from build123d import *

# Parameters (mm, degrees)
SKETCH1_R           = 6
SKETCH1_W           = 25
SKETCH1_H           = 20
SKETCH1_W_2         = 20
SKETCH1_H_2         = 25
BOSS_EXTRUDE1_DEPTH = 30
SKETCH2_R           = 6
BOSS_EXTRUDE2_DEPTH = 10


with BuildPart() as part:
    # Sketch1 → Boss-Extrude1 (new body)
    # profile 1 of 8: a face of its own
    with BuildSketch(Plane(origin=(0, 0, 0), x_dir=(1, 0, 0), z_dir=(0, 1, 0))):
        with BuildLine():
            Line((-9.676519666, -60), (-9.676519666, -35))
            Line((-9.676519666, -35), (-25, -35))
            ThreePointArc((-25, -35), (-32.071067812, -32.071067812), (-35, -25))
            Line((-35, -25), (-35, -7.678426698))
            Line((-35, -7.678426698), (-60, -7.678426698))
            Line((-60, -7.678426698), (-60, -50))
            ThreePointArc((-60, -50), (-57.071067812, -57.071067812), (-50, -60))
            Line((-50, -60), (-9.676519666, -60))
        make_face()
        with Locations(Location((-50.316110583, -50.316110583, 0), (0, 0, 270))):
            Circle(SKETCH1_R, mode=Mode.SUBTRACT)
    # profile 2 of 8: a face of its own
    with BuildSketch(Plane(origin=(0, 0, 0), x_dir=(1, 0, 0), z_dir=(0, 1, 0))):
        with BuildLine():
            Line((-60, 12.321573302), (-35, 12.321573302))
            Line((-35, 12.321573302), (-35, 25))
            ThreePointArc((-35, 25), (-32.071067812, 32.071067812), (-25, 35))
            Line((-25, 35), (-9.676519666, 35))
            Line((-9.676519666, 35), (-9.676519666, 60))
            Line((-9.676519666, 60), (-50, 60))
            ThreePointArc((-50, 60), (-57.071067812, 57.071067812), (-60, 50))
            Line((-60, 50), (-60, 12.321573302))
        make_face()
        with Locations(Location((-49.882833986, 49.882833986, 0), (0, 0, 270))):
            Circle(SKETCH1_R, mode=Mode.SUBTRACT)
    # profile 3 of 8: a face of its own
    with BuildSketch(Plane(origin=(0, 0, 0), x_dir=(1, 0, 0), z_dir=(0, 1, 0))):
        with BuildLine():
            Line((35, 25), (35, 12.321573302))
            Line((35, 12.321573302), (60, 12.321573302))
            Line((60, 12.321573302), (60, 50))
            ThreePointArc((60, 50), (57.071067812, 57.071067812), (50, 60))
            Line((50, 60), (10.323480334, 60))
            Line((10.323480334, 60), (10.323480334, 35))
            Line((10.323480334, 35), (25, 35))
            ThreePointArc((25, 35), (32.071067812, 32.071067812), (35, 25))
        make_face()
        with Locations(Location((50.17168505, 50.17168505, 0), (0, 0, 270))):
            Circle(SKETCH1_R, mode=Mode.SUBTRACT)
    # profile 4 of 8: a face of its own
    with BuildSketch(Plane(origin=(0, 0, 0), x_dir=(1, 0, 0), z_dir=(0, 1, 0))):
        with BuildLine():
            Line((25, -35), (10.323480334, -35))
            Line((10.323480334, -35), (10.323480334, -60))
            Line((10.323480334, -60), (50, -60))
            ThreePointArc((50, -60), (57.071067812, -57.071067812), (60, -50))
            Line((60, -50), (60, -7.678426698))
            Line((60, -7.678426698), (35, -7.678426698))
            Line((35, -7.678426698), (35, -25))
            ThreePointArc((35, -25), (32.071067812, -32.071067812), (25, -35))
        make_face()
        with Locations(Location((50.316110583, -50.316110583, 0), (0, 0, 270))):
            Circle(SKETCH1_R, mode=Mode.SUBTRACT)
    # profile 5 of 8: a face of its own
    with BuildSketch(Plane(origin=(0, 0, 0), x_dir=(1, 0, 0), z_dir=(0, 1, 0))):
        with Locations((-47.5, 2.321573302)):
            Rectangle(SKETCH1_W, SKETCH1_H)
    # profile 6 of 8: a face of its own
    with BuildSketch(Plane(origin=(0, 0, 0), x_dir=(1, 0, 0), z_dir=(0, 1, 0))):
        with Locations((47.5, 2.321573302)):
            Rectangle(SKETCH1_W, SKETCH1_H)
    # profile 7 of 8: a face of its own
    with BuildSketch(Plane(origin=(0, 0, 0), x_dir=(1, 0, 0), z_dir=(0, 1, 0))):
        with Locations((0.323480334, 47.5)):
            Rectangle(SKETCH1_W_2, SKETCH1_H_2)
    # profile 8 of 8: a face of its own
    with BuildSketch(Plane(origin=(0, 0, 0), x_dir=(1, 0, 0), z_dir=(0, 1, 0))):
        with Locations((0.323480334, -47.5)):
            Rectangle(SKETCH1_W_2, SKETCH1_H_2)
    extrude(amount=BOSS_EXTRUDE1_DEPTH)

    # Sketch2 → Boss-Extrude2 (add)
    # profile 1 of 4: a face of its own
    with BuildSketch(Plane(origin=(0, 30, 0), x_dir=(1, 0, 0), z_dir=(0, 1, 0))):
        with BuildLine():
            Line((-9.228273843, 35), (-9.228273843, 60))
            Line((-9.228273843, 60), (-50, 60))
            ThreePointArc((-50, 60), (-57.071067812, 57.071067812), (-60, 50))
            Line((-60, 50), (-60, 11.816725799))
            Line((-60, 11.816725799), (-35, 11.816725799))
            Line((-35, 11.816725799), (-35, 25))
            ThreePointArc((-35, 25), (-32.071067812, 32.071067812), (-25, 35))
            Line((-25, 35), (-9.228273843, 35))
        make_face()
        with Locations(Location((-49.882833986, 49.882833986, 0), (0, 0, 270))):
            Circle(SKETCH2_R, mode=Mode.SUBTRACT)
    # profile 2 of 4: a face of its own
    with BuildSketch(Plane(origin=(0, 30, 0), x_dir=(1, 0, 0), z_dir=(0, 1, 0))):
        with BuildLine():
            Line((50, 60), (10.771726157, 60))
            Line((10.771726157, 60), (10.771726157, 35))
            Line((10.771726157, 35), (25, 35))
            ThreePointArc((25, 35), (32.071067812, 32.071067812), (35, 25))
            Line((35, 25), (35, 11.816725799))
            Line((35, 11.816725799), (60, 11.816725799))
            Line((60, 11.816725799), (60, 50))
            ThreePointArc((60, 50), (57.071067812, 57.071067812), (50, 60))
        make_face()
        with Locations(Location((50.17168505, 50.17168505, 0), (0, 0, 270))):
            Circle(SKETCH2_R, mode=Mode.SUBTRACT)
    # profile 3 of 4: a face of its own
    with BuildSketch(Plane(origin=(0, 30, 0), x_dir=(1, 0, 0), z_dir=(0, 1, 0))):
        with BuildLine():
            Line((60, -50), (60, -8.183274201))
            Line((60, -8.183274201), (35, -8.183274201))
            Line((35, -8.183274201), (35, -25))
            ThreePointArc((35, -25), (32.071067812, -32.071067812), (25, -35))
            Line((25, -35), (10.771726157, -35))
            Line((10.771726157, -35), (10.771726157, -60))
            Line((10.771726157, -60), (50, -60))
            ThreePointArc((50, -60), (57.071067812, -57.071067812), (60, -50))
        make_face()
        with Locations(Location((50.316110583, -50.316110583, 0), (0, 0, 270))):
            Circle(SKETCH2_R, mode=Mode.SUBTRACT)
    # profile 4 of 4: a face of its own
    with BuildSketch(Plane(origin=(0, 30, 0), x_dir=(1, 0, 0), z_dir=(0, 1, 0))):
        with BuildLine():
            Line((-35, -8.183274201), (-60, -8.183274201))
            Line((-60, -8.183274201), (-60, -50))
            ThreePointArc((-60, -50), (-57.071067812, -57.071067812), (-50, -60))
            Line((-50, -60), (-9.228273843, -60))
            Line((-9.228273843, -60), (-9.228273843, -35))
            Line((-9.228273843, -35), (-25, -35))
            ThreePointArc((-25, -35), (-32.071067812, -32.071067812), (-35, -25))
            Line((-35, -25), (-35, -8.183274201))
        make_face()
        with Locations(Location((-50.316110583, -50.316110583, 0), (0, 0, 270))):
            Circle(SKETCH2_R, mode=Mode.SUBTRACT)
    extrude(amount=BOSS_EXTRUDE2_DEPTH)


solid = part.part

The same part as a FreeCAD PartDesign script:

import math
import FreeCAD as App
import Part
import Sketcher

V = App.Vector
Q = App.Units.Quantity

doc = App.newDocument("Part")
params = doc.addObject("Spreadsheet::Sheet", "Params")
for row, (alias, value) in enumerate([
    ("sketch1_diameter", "12 mm"),
    ("sketch1_radius", "10 mm"),
    ("sketch1_width", "100 mm"),
    ("sketch1_width2", "50 mm"),
    ("pad1_length", "30 mm"),
    ("sketch2_diameter", "12 mm"),
    ("sketch2_radius", "10 mm"),
    ("sketch2_width", "25 mm"),
    ("pad2_length", "10 mm"),
], start=1):
    params.set(f"A{row}", alias)
    params.set(f"B{row}", "=" + value)
    params.setAlias(f"B{row}", alias)

body = doc.addObject("PartDesign::Body", "Body")

# Sketch on XZ plane
sketch1 = body.newObject("Sketcher::SketchObject", "Sketch")
sketch1.AttachmentSupport = (doc.getObject("XZ_Plane"), [""])
sketch1.MapMode = "FlatFace"
sketch1.addGeometry([
    Part.LineSegment(V(-50, 60, 0), V(50, 60, 0)),  # 0
    Part.ArcOfCircle(Part.Circle(V(50, 50, 0), V(0, 0, 1), 10), math.radians(0), math.radians(90)),  # 1
    Part.LineSegment(V(60, 50, 0), V(60, -50, 0)),  # 2
    Part.ArcOfCircle(Part.Circle(V(50, -50, 0), V(0, 0, 1), 10), math.radians(-90), math.radians(0)),  # 3
    Part.LineSegment(V(50, -60, 0), V(-50, -60, 0)),  # 4
    Part.ArcOfCircle(Part.Circle(V(-50, -50, 0), V(0, 0, 1), 10), math.radians(180), math.radians(270)),  # 5
    Part.LineSegment(V(-60, -50, 0), V(-60, 50, 0)),  # 6
    Part.ArcOfCircle(Part.Circle(V(-50, 50, 0), V(0, 0, 1), 10), math.radians(90), math.radians(180)),  # 7
    Part.ArcOfCircle(Part.Circle(V(-25, 25, 0), V(0, 0, 1), 10), math.radians(90), math.radians(180)),  # 8
    Part.LineSegment(V(-35, 25, 0), V(-35, -25, 0)),  # 9
    Part.ArcOfCircle(Part.Circle(V(-25, -25, 0), V(0, 0, 1), 10), math.radians(180), math.radians(270)),  # 10
    Part.LineSegment(V(-25, -35, 0), V(25, -35, 0)),  # 11
    Part.ArcOfCircle(Part.Circle(V(25, -25, 0), V(0, 0, 1), 10), math.radians(-90), math.radians(0)),  # 12
    Part.LineSegment(V(35, -25, 0), V(35, 25, 0)),  # 13
    Part.ArcOfCircle(Part.Circle(V(25, 25, 0), V(0, 0, 1), 10), math.radians(0), math.radians(90)),  # 14
    Part.LineSegment(V(25, 35, 0), V(-25, 35, 0)),  # 15
    Part.Circle(V(-50, 50, 0), V(0, 0, 1), 6),  # 16
    Part.Circle(V(50, 50, 0), V(0, 0, 1), 6),  # 17
    Part.Circle(V(-50, -50, 0), V(0, 0, 1), 6),  # 18
    Part.Circle(V(50, -50, 0), V(0, 0, 1), 6),  # 19
], False)
sketch1.addConstraint([
    Sketcher.Constraint("Tangent", 0, 2, 1, 2),
    Sketcher.Constraint("Tangent", 1, 1, 2, 1),
    Sketcher.Constraint("Tangent", 2, 2, 3, 2),
    Sketcher.Constraint("Tangent", 3, 1, 4, 1),
    Sketcher.Constraint("Tangent", 4, 2, 5, 2),
    Sketcher.Constraint("Tangent", 5, 1, 6, 1),
    Sketcher.Constraint("Tangent", 6, 2, 7, 2),
    Sketcher.Constraint("Tangent", 7, 1, 0, 1),
    Sketcher.Constraint("Tangent", 8, 2, 9, 1),
    Sketcher.Constraint("Tangent", 9, 2, 10, 1),
    Sketcher.Constraint("Tangent", 10, 2, 11, 1),
    Sketcher.Constraint("Tangent", 11, 2, 12, 1),
    Sketcher.Constraint("Tangent", 12, 2, 13, 1),
    Sketcher.Constraint("Tangent", 13, 2, 14, 1),
    Sketcher.Constraint("Tangent", 14, 2, 15, 1),
    Sketcher.Constraint("Tangent", 15, 2, 8, 1),
    Sketcher.Constraint("Horizontal", 0),
    Sketcher.Constraint("Vertical", 2),
    Sketcher.Constraint("Horizontal", 4),
    Sketcher.Constraint("Vertical", 6),
    Sketcher.Constraint("Vertical", 9),
    Sketcher.Constraint("Horizontal", 11),
    Sketcher.Constraint("Vertical", 13),
    Sketcher.Constraint("Horizontal", 15),
    Sketcher.Constraint("Equal", 1, 3),
    Sketcher.Constraint("Equal", 3, 5),
    Sketcher.Constraint("Equal", 5, 7),
    Sketcher.Constraint("Equal", 7, 8),
    Sketcher.Constraint("Equal", 8, 10),
    Sketcher.Constraint("Equal", 10, 12),
    Sketcher.Constraint("Equal", 12, 14),
    Sketcher.Constraint("Equal", 16, 17),
    Sketcher.Constraint("Equal", 17, 18),
    Sketcher.Constraint("Equal", 18, 19),
    Sketcher.Constraint("Symmetric", 1, 3, 5, 3, -1, 1),
    Sketcher.Constraint("Symmetric", 8, 3, 12, 3, -1, 1),
    Sketcher.Constraint("Symmetric", 16, 3, 17, 3, -2),
    Sketcher.Constraint("Equal", 4, 2),
    Sketcher.Constraint("Equal", 15, 9),
    Sketcher.Constraint("Diameter", 16, Q("12 mm")),
    Sketcher.Constraint("Radius", 1, Q("10 mm")),
    Sketcher.Constraint("DistanceX", 0, 1, 0, 2, Q("100 mm")),
    Sketcher.Constraint("DistanceX", 11, 1, 11, 2, Q("50 mm")),
    Sketcher.Constraint("DistanceX", 16, 3, -1, 1, Q("50.316111 mm")),
    Sketcher.Constraint("DistanceY", -1, 1, 16, 3, Q("50.316111 mm")),
    Sketcher.Constraint("DistanceX", 18, 3, 19, 3, Q("100.054519 mm")),
    Sketcher.Constraint("DistanceY", 19, 3, 18, 3, Q("0.288851 mm")),
    Sketcher.Constraint("DistanceX", 18, 3, -1, 1, Q("49.882834 mm")),
    Sketcher.Constraint("DistanceY", 18, 3, -1, 1, Q("49.882834 mm")),
])
sketch1.setExpression("Constraints[39]", "Params.sketch1_diameter")
sketch1.setExpression("Constraints[40]", "Params.sketch1_radius")
sketch1.setExpression("Constraints[41]", "Params.sketch1_width")
sketch1.setExpression("Constraints[42]", "Params.sketch1_width2")
pad1 = body.newObject("PartDesign::Pad", "Pad")
pad1.Profile = sketch1
pad1.setExpression("Length", "Params.pad1_length")
pad1.Reversed = True

# Sketch on XZ plane
sketch2 = body.newObject("Sketcher::SketchObject", "Sketch001")
sketch2.AttachmentSupport = (doc.getObject("XZ_Plane"), [""])
sketch2.MapMode = "FlatFace"
sketch2.AttachmentOffset = App.Placement(V(0, 0, -30), App.Rotation())
sketch2.addGeometry([
    Part.LineSegment(V(-9, -35, 0), V(-9, -60, 0)),  # 0
    Part.LineSegment(V(-9, -60, 0), V(-50, -60, 0)),  # 1
    Part.ArcOfCircle(Part.Circle(V(-50, -50, 0), V(0, 0, 1), 10), math.radians(180), math.radians(270)),  # 2
    Part.LineSegment(V(-60, -50, 0), V(-60, -12, 0)),  # 3
    Part.LineSegment(V(-60, -12, 0), V(-35, -12, 0)),  # 4
    Part.LineSegment(V(-35, -12, 0), V(-35, -25, 0)),  # 5
    Part.ArcOfCircle(Part.Circle(V(-25, -25, 0), V(0, 0, 1), 10), math.radians(180), math.radians(270)),  # 6
    Part.LineSegment(V(-25, -35, 0), V(-9, -35, 0)),  # 7
    Part.Circle(V(-50, -50, 0), V(0, 0, 1), 6),  # 8
    Part.LineSegment(V(50, -60, 0), V(11, -60, 0)),  # 9
    Part.LineSegment(V(11, -60, 0), V(11, -35, 0)),  # 10
    Part.LineSegment(V(11, -35, 0), V(25, -35, 0)),  # 11
    Part.ArcOfCircle(Part.Circle(V(25, -25, 0), V(0, 0, 1), 10), math.radians(-90), math.radians(0)),  # 12
    Part.LineSegment(V(35, -25, 0), V(35, -12, 0)),  # 13
    Part.LineSegment(V(35, -12, 0), V(60, -12, 0)),  # 14
    Part.LineSegment(V(60, -12, 0), V(60, -50, 0)),  # 15
    Part.ArcOfCircle(Part.Circle(V(50, -50, 0), V(0, 0, 1), 10), math.radians(-90), math.radians(0)),  # 16
    Part.Circle(V(50, -50, 0), V(0, 0, 1), 6),  # 17
    Part.LineSegment(V(60, 50, 0), V(60, 8, 0)),  # 18
    Part.LineSegment(V(60, 8, 0), V(35, 8, 0)),  # 19
    Part.LineSegment(V(35, 8, 0), V(35, 25, 0)),  # 20
    Part.ArcOfCircle(Part.Circle(V(25, 25, 0), V(0, 0, 1), 10), math.radians(0), math.radians(90)),  # 21
    Part.LineSegment(V(25, 35, 0), V(11, 35, 0)),  # 22
    Part.LineSegment(V(11, 35, 0), V(11, 60, 0)),  # 23
    Part.LineSegment(V(11, 60, 0), V(50, 60, 0)),  # 24
    Part.ArcOfCircle(Part.Circle(V(50, 50, 0), V(0, 0, 1), 10), math.radians(0), math.radians(90)),  # 25
    Part.Circle(V(50, 50, 0), V(0, 0, 1), 6),  # 26
    Part.LineSegment(V(-35, 8, 0), V(-60, 8, 0)),  # 27
    Part.LineSegment(V(-60, 8, 0), V(-60, 50, 0)),  # 28
    Part.ArcOfCircle(Part.Circle(V(-50, 50, 0), V(0, 0, 1), 10), math.radians(90), math.radians(180)),  # 29
    Part.LineSegment(V(-50, 60, 0), V(-9, 60, 0)),  # 30
    Part.LineSegment(V(-9, 60, 0), V(-9, 35, 0)),  # 31
    Part.LineSegment(V(-9, 35, 0), V(-25, 35, 0)),  # 32
    Part.ArcOfCircle(Part.Circle(V(-25, 25, 0), V(0, 0, 1), 10), math.radians(90), math.radians(180)),  # 33
    Part.LineSegment(V(-35, 25, 0), V(-35, 8, 0)),  # 34
    Part.Circle(V(-50, 50, 0), V(0, 0, 1), 6),  # 35
], False)
sketch2.addConstraint([
    Sketcher.Constraint("Coincident", 0, 2, 1, 1),
    Sketcher.Constraint("Tangent", 1, 2, 2, 2),
    Sketcher.Constraint("Tangent", 2, 1, 3, 1),
    Sketcher.Constraint("Coincident", 3, 2, 4, 1),
    Sketcher.Constraint("Coincident", 4, 2, 5, 1),
    Sketcher.Constraint("Tangent", 5, 2, 6, 1),
    Sketcher.Constraint("Tangent", 6, 2, 7, 1),
    Sketcher.Constraint("Coincident", 7, 2, 0, 1),
    Sketcher.Constraint("Coincident", 9, 2, 10, 1),
    Sketcher.Constraint("Coincident", 10, 2, 11, 1),
    Sketcher.Constraint("Tangent", 11, 2, 12, 1),
    Sketcher.Constraint("Tangent", 12, 2, 13, 1),
    Sketcher.Constraint("Coincident", 13, 2, 14, 1),
    Sketcher.Constraint("Coincident", 14, 2, 15, 1),
    Sketcher.Constraint("Tangent", 15, 2, 16, 2),
    Sketcher.Constraint("Tangent", 16, 1, 9, 1),
    Sketcher.Constraint("Coincident", 18, 2, 19, 1),
    Sketcher.Constraint("Coincident", 19, 2, 20, 1),
    Sketcher.Constraint("Tangent", 20, 2, 21, 1),
    Sketcher.Constraint("Tangent", 21, 2, 22, 1),
    Sketcher.Constraint("Coincident", 22, 2, 23, 1),
    Sketcher.Constraint("Coincident", 23, 2, 24, 1),
    Sketcher.Constraint("Tangent", 24, 2, 25, 2),
    Sketcher.Constraint("Tangent", 25, 1, 18, 1),
    Sketcher.Constraint("Coincident", 27, 2, 28, 1),
    Sketcher.Constraint("Tangent", 28, 2, 29, 2),
    Sketcher.Constraint("Tangent", 29, 1, 30, 1),
    Sketcher.Constraint("Coincident", 30, 2, 31, 1),
    Sketcher.Constraint("Coincident", 31, 2, 32, 1),
    Sketcher.Constraint("Tangent", 32, 2, 33, 1),
    Sketcher.Constraint("Tangent", 33, 2, 34, 1),
    Sketcher.Constraint("Coincident", 34, 2, 27, 1),
    Sketcher.Constraint("Vertical", 0),
    Sketcher.Constraint("Horizontal", 1),
    Sketcher.Constraint("Vertical", 3),
    Sketcher.Constraint("Horizontal", 4),
    Sketcher.Constraint("Vertical", 5),
    Sketcher.Constraint("Horizontal", 7),
    Sketcher.Constraint("Horizontal", 9),
    Sketcher.Constraint("Vertical", 10),
    Sketcher.Constraint("Horizontal", 11),
    Sketcher.Constraint("Vertical", 13),
    Sketcher.Constraint("Horizontal", 14),
    Sketcher.Constraint("Vertical", 15),
    Sketcher.Constraint("Vertical", 18),
    Sketcher.Constraint("Horizontal", 19),
    Sketcher.Constraint("Vertical", 20),
    Sketcher.Constraint("Horizontal", 22),
    Sketcher.Constraint("Vertical", 23),
    Sketcher.Constraint("Horizontal", 24),
    Sketcher.Constraint("Horizontal", 27),
    Sketcher.Constraint("Vertical", 28),
    Sketcher.Constraint("Horizontal", 30),
    Sketcher.Constraint("Vertical", 31),
    Sketcher.Constraint("Horizontal", 32),
    Sketcher.Constraint("Vertical", 34),
    Sketcher.Constraint("Equal", 2, 6),
    Sketcher.Constraint("Equal", 6, 12),
    Sketcher.Constraint("Equal", 12, 16),
    Sketcher.Constraint("Equal", 8, 17),
    Sketcher.Constraint("Equal", 16, 21),
    Sketcher.Constraint("Equal", 21, 25),
    Sketcher.Constraint("Equal", 17, 26),
    Sketcher.Constraint("Equal", 25, 29),
    Sketcher.Constraint("Equal", 29, 33),
    Sketcher.Constraint("Equal", 26, 35),
    Sketcher.Constraint("Symmetric", 6, 3, 21, 3, -1, 1),
    Sketcher.Constraint("Symmetric", 2, 3, 25, 3, -1, 1),
    Sketcher.Constraint("Symmetric", 16, 3, 29, 3, -1, 1),
    Sketcher.Constraint("Symmetric", 12, 3, 33, 3, -1, 1),
    Sketcher.Constraint("Symmetric", 6, 3, 12, 3, -2),
    Sketcher.Constraint("Symmetric", 2, 3, 16, 3, -2),
    Sketcher.Constraint("Symmetric", 26, 3, 35, 3, -2),
    Sketcher.Constraint("Horizontal", 4, 2, 13, 2),
    Sketcher.Constraint("Horizontal", 19, 2, 27, 2),
    Sketcher.Constraint("Vertical", 10, 2, 22, 2),
    Sketcher.Constraint("Vertical", 7, 2, 30, 2),
    Sketcher.Constraint("Equal", 27, 0),
    Sketcher.Constraint("Diameter", 8, Q("12 mm")),
    Sketcher.Constraint("Radius", 2, Q("10 mm")),
    Sketcher.Constraint("DistanceX", 4, 1, 4, 2, Q("25 mm")),
    Sketcher.Constraint("DistanceX", 2, 3, -1, 1, Q("50 mm")),
    Sketcher.Constraint("DistanceY", 2, 3, -1, 1, Q("50 mm")),
    Sketcher.Constraint("DistanceX", 0, 2, 9, 2, Q("20 mm")),
    Sketcher.Constraint("DistanceY", 14, 2, 18, 2, Q("20 mm")),
    Sketcher.Constraint("DistanceX", 1, 2, 1, 1, Q("40.771726 mm")),
    Sketcher.Constraint("DistanceY", 3, 1, 3, 2, Q("38.183274 mm")),
    Sketcher.Constraint("DistanceX", -1, 1, 26, 3, Q("50.316111 mm")),
    Sketcher.Constraint("DistanceY", -1, 1, 26, 3, Q("50.316111 mm")),
    Sketcher.Constraint("DistanceX", 8, 3, 17, 3, Q("100.054519 mm")),
    Sketcher.Constraint("DistanceY", 17, 3, 8, 3, Q("0.288851 mm")),
    Sketcher.Constraint("DistanceX", 8, 3, 0, 2, Q("40.65456 mm")),
    Sketcher.Constraint("DistanceY", 8, 3, 3, 2, Q("38.066108 mm")),
])
sketch2.setExpression("Constraints[78]", "Params.sketch2_diameter")
sketch2.setExpression("Constraints[79]", "Params.sketch2_radius")
sketch2.setExpression("Constraints[80]", "Params.sketch2_width")
pad2 = body.newObject("PartDesign::Pad", "Pad001")
pad2.Profile = sketch2
pad2.setExpression("Length", "Params.pad2_length")
pad2.Reversed = True

doc.recompute()
